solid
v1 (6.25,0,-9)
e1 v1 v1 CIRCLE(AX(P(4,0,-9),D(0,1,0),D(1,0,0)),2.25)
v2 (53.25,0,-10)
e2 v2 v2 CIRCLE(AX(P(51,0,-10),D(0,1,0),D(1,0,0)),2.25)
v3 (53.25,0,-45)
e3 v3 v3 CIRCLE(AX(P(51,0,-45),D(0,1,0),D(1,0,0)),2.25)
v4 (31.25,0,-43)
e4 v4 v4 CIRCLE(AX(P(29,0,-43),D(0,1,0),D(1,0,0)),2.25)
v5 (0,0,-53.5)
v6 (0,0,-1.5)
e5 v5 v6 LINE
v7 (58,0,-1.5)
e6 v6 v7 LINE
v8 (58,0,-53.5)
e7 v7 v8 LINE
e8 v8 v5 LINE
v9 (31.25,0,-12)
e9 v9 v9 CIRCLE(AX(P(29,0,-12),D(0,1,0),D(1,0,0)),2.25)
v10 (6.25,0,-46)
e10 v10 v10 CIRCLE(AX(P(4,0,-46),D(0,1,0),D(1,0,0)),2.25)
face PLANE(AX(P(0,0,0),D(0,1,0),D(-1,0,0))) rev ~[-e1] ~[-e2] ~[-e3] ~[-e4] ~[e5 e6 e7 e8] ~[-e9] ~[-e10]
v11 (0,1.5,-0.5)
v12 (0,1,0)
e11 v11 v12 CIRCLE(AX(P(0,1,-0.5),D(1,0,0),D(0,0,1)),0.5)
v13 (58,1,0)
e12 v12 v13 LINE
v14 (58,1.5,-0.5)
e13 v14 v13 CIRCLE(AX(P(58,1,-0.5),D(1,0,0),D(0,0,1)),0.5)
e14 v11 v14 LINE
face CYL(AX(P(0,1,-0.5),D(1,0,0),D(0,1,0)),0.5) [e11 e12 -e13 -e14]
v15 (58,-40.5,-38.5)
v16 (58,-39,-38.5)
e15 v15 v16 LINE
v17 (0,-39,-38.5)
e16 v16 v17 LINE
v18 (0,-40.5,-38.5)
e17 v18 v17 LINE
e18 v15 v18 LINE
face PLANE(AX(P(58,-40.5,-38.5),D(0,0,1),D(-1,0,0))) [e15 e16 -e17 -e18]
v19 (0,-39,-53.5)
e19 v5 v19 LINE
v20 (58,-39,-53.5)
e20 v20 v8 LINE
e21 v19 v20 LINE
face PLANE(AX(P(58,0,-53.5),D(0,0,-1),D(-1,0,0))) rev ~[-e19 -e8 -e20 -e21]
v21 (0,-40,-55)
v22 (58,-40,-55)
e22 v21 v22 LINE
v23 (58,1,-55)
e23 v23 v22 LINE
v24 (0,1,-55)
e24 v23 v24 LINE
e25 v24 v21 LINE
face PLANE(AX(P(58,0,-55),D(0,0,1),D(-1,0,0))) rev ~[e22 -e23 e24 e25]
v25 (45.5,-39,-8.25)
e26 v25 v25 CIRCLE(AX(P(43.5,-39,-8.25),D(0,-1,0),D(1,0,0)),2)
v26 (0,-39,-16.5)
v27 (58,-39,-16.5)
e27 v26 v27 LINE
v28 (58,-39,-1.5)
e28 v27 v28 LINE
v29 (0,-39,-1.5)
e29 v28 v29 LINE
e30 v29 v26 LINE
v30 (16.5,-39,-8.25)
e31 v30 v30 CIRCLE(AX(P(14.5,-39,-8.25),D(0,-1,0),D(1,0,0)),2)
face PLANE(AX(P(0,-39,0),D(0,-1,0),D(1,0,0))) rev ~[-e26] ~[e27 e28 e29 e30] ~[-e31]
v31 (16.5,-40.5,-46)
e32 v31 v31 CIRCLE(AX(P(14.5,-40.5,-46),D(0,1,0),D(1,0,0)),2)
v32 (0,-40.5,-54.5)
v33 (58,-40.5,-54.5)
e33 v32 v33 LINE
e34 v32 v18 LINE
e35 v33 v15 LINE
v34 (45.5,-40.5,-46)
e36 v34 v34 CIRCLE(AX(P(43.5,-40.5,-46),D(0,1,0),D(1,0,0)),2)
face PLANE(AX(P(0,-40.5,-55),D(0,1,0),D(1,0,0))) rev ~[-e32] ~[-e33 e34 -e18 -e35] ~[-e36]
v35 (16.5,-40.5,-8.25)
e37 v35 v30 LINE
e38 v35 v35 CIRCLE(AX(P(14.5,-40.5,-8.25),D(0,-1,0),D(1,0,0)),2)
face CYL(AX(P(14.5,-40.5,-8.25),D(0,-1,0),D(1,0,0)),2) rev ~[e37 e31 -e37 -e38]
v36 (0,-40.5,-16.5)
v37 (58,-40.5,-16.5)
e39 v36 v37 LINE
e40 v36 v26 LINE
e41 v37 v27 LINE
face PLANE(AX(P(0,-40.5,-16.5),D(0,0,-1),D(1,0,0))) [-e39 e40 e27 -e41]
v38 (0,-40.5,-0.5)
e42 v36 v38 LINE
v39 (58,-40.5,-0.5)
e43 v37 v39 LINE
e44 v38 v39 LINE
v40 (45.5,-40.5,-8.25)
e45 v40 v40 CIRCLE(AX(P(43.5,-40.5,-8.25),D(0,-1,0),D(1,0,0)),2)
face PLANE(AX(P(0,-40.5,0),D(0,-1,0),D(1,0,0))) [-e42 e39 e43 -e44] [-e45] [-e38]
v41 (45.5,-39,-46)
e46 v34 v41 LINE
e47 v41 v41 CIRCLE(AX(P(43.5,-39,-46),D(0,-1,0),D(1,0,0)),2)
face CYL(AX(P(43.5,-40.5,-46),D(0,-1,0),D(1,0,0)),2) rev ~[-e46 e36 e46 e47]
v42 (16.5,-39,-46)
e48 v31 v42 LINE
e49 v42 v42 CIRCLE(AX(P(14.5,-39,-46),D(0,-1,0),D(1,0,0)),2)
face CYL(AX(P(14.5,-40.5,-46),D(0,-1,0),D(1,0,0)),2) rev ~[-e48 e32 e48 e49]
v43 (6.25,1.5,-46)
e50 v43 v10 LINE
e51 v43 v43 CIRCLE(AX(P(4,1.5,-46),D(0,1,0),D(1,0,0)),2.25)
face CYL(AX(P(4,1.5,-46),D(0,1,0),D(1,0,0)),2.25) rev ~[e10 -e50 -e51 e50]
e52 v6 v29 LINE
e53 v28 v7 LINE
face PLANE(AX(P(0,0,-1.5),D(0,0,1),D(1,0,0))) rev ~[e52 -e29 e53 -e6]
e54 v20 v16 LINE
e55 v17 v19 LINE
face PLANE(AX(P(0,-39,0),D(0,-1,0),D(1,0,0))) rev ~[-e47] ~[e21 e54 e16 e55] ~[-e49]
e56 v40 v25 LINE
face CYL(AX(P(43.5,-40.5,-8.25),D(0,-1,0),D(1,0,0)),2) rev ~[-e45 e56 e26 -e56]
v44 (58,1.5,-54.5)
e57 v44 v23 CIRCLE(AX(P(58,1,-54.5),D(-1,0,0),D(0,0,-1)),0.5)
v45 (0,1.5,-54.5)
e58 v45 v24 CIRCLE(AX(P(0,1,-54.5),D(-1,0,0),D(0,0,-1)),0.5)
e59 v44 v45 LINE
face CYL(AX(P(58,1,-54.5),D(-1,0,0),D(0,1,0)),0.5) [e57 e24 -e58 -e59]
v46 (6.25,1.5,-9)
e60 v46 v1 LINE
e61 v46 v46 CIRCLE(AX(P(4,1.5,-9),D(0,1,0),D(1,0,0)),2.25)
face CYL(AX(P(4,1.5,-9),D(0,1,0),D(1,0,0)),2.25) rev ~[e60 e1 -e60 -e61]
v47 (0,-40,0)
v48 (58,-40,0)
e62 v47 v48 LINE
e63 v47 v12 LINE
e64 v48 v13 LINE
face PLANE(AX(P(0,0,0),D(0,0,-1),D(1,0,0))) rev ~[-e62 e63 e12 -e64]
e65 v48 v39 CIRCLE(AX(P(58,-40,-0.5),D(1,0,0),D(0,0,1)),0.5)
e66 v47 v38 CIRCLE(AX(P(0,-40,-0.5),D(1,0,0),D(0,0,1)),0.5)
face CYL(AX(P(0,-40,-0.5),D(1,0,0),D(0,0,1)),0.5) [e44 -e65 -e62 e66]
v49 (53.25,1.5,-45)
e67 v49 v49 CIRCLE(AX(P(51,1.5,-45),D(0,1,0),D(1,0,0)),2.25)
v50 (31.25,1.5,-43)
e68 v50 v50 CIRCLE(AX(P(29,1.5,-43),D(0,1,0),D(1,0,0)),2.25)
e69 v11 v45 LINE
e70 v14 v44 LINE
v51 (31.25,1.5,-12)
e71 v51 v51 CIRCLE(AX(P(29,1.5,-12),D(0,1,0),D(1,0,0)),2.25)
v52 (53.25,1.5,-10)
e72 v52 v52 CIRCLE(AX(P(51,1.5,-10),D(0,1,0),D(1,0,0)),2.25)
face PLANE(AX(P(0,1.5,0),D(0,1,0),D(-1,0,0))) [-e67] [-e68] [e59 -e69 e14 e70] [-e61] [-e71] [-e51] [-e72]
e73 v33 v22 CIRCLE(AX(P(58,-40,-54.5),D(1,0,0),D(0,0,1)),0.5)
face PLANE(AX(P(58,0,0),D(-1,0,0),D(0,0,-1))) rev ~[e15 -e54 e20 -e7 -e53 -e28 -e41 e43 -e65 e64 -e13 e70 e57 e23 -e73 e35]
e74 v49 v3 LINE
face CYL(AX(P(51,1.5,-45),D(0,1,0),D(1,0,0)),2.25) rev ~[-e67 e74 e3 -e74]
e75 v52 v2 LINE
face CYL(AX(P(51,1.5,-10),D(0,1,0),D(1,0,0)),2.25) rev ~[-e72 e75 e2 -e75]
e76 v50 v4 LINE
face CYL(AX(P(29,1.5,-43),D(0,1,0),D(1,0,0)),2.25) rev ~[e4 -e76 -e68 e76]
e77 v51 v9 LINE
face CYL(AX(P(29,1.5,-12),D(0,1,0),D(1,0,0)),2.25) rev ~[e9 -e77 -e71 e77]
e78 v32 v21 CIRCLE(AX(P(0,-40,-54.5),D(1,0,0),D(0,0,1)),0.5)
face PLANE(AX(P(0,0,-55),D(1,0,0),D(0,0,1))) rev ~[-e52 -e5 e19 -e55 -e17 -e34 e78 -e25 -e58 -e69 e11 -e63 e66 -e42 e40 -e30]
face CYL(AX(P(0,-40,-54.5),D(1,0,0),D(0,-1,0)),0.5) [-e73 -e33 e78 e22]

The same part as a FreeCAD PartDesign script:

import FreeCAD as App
import Part
import Sketcher
from FreeCAD import Vector


def edges_at(feature, points):
    """Names of the edges that pass closest to the given points."""
    edges = feature.Shape.Edges
    near = lambda p: min(range(len(edges)), key=lambda i: edges[i].distToShape(Part.Vertex(*p))[0])
    return sorted({f"Edge{near(p) + 1}" for p in points})


def add_polygon(sketch, points):
    """Adds a closed chain of lines whose ends are joined by coincident constraints."""
    first, n = sketch.GeometryCount, len(points)
    for a, b in zip(points, points[1:] + points[:1]):
        sketch.addGeometry(Part.LineSegment(App.Vector(*a, 0), App.Vector(*b, 0)), False)
    for i in range(n):
        sketch.addConstraint(Sketcher.Constraint("Coincident", first + i, 2, first + (i + 1) % n, 1))

doc = App.newDocument("Part")
body = doc.addObject("PartDesign::Body", "Body")

# Sketch on XZ plane
sketch1 = doc.addObject("Sketcher::SketchObject", "Sketch")
body.addObject(sketch1)
sketch1.AttachmentSupport = (doc.XZ_Plane, [""])
sketch1.MapMode = "FlatFace"
add_polygon(sketch1, [(0, -55), (0, 0), (58, 0), (58, -55)])  # lines 0-3
sketch1.addConstraint(Sketcher.Constraint("Vertical", 0))
sketch1.addConstraint(Sketcher.Constraint("Horizontal", 1))
sketch1.addConstraint(Sketcher.Constraint("Vertical", 2))
sketch1.addConstraint(Sketcher.Constraint("Horizontal", 3))
sketch1.addConstraint(Sketcher.Constraint("Coincident", 0, 2, -1, 1))
sketch1.addConstraint(Sketcher.Constraint("DistanceX", 1, 1, 1, 2, 58.0))
sketch1.addConstraint(Sketcher.Constraint("DistanceY", 0, 1, 0, 2, 55.0))
pad1 = doc.addObject("PartDesign::Pad", "Pad")
body.addObject(pad1)
pad1.Profile = sketch1
pad1.Length = 1.5
pad1.Reversed = True

# Sketch on XY plane
sketch2 = doc.addObject("Sketcher::SketchObject", "Sketch001")
body.addObject(sketch2)
sketch2.AttachmentSupport = (doc.XY_Plane, [""])
sketch2.MapMode = "FlatFace"
sketch2.AttachmentOffset = App.Placement(Vector(0, 0, -55), App.Rotation())
add_polygon(sketch2, [(0, -40), (0, 2), (58, 2), (58, -40)])  # lines 0-3
sketch2.addConstraint(Sketcher.Constraint("Vertical", 0))
sketch2.addConstraint(Sketcher.Constraint("Horizontal", 1))
sketch2.addConstraint(Sketcher.Constraint("Vertical", 2))
sketch2.addConstraint(Sketcher.Constraint("Horizontal", 3))
sketch2.addConstraint(Sketcher.Constraint("PointOnObject", 0, 2, -2))
sketch2.addConstraint(Sketcher.Constraint("DistanceY", 0, 1, 0, 2, 42.0))
sketch2.addConstraint(Sketcher.Constraint("DistanceX", 1, 1, 1, 2, 58.0))
sketch2.addConstraint(Sketcher.Constraint("DistanceY", -1, 1, 0, 2, 1.5))
pad2 = doc.addObject("PartDesign::Pad", "Pad001")
body.addObject(pad2)
pad2.Profile = sketch2
pad2.Length = 1.5

# Sketch on XY plane
sketch3 = doc.addObject("Sketcher::SketchObject", "Sketch002")
body.addObject(sketch3)
sketch3.AttachmentSupport = (doc.XY_Plane, [""])
sketch3.MapMode = "FlatFace"
add_polygon(sketch3, [(58, 2), (0, 2), (0, -40), (58, -40)])  # lines 0-3
sketch3.addConstraint(Sketcher.Constraint("Horizontal", 0))
sketch3.addConstraint(Sketcher.Constraint("Vertical", 1))
sketch3.addConstraint(Sketcher.Constraint("Horizontal", 2))
sketch3.addConstraint(Sketcher.Constraint("Vertical", 3))
sketch3.addConstraint(Sketcher.Constraint("PointOnObject", 0, 2, -2))
sketch3.addConstraint(Sketcher.Constraint("DistanceX", 0, 2, 0, 1, 58.0))
sketch3.addConstraint(Sketcher.Constraint("DistanceY", 1, 2, 1, 1, 42.0))
sketch3.addConstraint(Sketcher.Constraint("DistanceY", -1, 1, 0, 2, 1.5))
pad3 = doc.addObject("PartDesign::Pad", "Pad002")
body.addObject(pad3)
pad3.Profile = sketch3
pad3.Length = 1.5
pad3.Reversed = True

# Sketch on XZ plane
sketch4 = doc.addObject("Sketcher::SketchObject", "Sketch003")
body.addObject(sketch4)
sketch4.AttachmentSupport = (doc.XZ_Plane, [""])
sketch4.MapMode = "FlatFace"
sketch4.AttachmentOffset = App.Placement(Vector(0, 0, 40.5), App.Rotation())
add_polygon(sketch4, [(58, -16), (58, -2), (0, -2), (0, -16)])  # lines 0-3
add_polygon(sketch4, [(58, -54), (58, -38), (0, -38), (0, -54)])  # lines 4-7
sketch4.addConstraint(Sketcher.Constraint("Vertical", 0))
sketch4.addConstraint(Sketcher.Constraint("Horizontal", 1))
sketch4.addConstraint(Sketcher.Constraint("Vertical", 2))
sketch4.addConstraint(Sketcher.Constraint("Horizontal", 3))
sketch4.addConstraint(Sketcher.Constraint("Vertical", 4))
sketch4.addConstraint(Sketcher.Constraint("Horizontal", 5))
sketch4.addConstraint(Sketcher.Constraint("Vertical", 6))
sketch4.addConstraint(Sketcher.Constraint("Horizontal", 7))
sketch4.addConstraint(Sketcher.Constraint("PointOnObject", 1, 2, -2))
sketch4.addConstraint(Sketcher.Constraint("PointOnObject", 5, 2, -2))
sketch4.addConstraint(Sketcher.Constraint("Vertical", 3, 2, 4, 2))
sketch4.addConstraint(Sketcher.Constraint("Equal", 2, 4))
sketch4.addConstraint(Sketcher.Constraint("DistanceX", 1, 2, 1, 1, 58.0))
sketch4.addConstraint(Sketcher.Constraint("DistanceY", 0, 1, 0, 2, 15.0))
sketch4.addConstraint(Sketcher.Constraint("DistanceY", 4, 2, 3, 2, 22.0))
sketch4.addConstraint(Sketcher.Constraint("DistanceY", 0, 2, -1, 1, 1.5))
pad4 = doc.addObject("PartDesign::Pad", "Pad003")
body.addObject(pad4)
pad4.Profile = sketch4
pad4.Length = 1.5
pad4.Reversed = True

# Sketch on XZ plane
sketch5 = doc.addObject("Sketcher::SketchObject", "Sketch004")
body.addObject(sketch5)
sketch5.AttachmentSupport = (doc.XZ_Plane, [""])
sketch5.MapMode = "FlatFace"
sketch5.AttachmentOffset = App.Placement(Vector(0, 0, 40.5), App.Rotation())
sketch5.addGeometry(Part.Circle(Vector(43.5, -8.2, 0), Vector(0, 0, 1), 2), False)
sketch5.addGeometry(Part.Circle(Vector(14.5, -8.2, 0), Vector(0, 0, 1), 2), False)
sketch5.addGeometry(Part.Circle(Vector(14.5, -46, 0), Vector(0, 0, 1), 2), False)
sketch5.addGeometry(Part.Circle(Vector(43.5, -46, 0), Vector(0, 0, 1), 2), False)
sketch5.addConstraint(Sketcher.Constraint("Equal", 0, 1))
sketch5.addConstraint(Sketcher.Constraint("Equal", 1, 2))
sketch5.addConstraint(Sketcher.Constraint("Equal", 2, 3))
sketch5.addConstraint(Sketcher.Constraint("Horizontal", 0, 3, 1, 3))
sketch5.addConstraint(Sketcher.Constraint("Horizontal", 2, 3, 3, 3))
sketch5.addConstraint(Sketcher.Constraint("Vertical", 1, 3, 2, 3))
sketch5.addConstraint(Sketcher.Constraint("Vertical", 0, 3, 3, 3))
sketch5.addConstraint(Sketcher.Constraint("Diameter", 0, 4.0))
sketch5.addConstraint(Sketcher.Constraint("DistanceY", 2, 3, -1, 1, 46.0))
sketch5.addConstraint(Sketcher.Constraint("DistanceX", 1, 3, 0, 3, 29.0))
sketch5.addConstraint(Sketcher.Constraint("DistanceX", -1, 1, 0, 3, 43.5))
sketch5.addConstraint(Sketcher.Constraint("DistanceY", 0, 3, -1, 1, 8.25))
pocket1 = doc.addObject("PartDesign::Pocket", "Pocket")
body.addObject(pocket1)
pocket1.Profile = sketch5
pocket1.Length = 1.5

# Sketch on XZ plane
sketch6 = doc.addObject("Sketcher::SketchObject", "Sketch005")
body.addObject(sketch6)
sketch6.AttachmentSupport = (doc.XZ_Plane, [""])
sketch6.MapMode = "FlatFace"
sketch6.AttachmentOffset = App.Placement(Vector(0, 0, -1.5), App.Rotation())
sketch6.addGeometry(Part.Circle(Vector(51, -45, 0), Vector(0, 0, 1), 2.2), False)
sketch6.addGeometry(Part.Circle(Vector(51, -10, 0), Vector(0, 0, 1), 2.2), False)
sketch6.addGeometry(Part.Circle(Vector(4, -9, 0), Vector(0, 0, 1), 2.2), False)
sketch6.addGeometry(Part.Circle(Vector(4, -46, 0), Vector(0, 0, 1), 2.2), False)
sketch6.addGeometry(Part.Circle(Vector(29, -12, 0), Vector(0, 0, 1), 2.2), False)
sketch6.addGeometry(Part.Circle(Vector(29, -43, 0), Vector(0, 0, 1), 2.2), False)
sketch6.addConstraint(Sketcher.Constraint("Equal", 0, 1))
sketch6.addConstraint(Sketcher.Constraint("Equal", 1, 2))
sketch6.addConstraint(Sketcher.Constraint("Equal", 2, 3))
sketch6.addConstraint(Sketcher.Constraint("Equal", 3, 4))
sketch6.addConstraint(Sketcher.Constraint("Equal", 4, 5))
sketch6.addConstraint(Sketcher.Constraint("Vertical", 0, 3, 1, 3))
sketch6.addConstraint(Sketcher.Constraint("Vertical", 2, 3, 3, 3))
sketch6.addConstraint(Sketcher.Constraint("Vertical", 4, 3, 5, 3))
sketch6.addConstraint(Sketcher.Constraint("Diameter", 0, 4.5))
sketch6.addConstraint(Sketcher.Constraint("DistanceX", -1, 1, 0, 3, 51.0))
sketch6.addConstraint(Sketcher.Constraint("DistanceY", 0, 3, -1, 1, 45.0))
sketch6.addConstraint(Sketcher.Constraint("DistanceY", 1, 3, -1, 1, 10.0))
sketch6.addConstraint(Sketcher.Constraint("DistanceX", -1, 1, 2, 3, 4.0))
sketch6.addConstraint(Sketcher.Constraint("DistanceY", 2, 3, -1, 1, 9.0))
sketch6.addConstraint(Sketcher.Constraint("DistanceY", 3, 3, -1, 1, 46.0))
sketch6.addConstraint(Sketcher.Constraint("DistanceX", -1, 1, 4, 3, 29.0))
sketch6.addConstraint(Sketcher.Constraint("DistanceY", 4, 3, -1, 1, 12.0))
sketch6.addConstraint(Sketcher.Constraint("DistanceY", 5, 3, -1, 1, 43.0))
pocket2 = doc.addObject("PartDesign::Pocket", "Pocket001")
body.addObject(pocket2)
pocket2.Profile = sketch6
pocket2.Length = 1.5
pocket2.Reversed = True
doc.recompute()

fillet = doc.addObject("PartDesign::Fillet", "Fillet")
body.addObject(fillet)
fillet.Base = (pocket2, edges_at(pocket2, [
    (29, 1.5, -55),
    (29, -40.5, -55),
    (29, -40.5, 0),
    (29, 1.5, 0),
]))
fillet.Radius = 0.5

doc.recompute()
